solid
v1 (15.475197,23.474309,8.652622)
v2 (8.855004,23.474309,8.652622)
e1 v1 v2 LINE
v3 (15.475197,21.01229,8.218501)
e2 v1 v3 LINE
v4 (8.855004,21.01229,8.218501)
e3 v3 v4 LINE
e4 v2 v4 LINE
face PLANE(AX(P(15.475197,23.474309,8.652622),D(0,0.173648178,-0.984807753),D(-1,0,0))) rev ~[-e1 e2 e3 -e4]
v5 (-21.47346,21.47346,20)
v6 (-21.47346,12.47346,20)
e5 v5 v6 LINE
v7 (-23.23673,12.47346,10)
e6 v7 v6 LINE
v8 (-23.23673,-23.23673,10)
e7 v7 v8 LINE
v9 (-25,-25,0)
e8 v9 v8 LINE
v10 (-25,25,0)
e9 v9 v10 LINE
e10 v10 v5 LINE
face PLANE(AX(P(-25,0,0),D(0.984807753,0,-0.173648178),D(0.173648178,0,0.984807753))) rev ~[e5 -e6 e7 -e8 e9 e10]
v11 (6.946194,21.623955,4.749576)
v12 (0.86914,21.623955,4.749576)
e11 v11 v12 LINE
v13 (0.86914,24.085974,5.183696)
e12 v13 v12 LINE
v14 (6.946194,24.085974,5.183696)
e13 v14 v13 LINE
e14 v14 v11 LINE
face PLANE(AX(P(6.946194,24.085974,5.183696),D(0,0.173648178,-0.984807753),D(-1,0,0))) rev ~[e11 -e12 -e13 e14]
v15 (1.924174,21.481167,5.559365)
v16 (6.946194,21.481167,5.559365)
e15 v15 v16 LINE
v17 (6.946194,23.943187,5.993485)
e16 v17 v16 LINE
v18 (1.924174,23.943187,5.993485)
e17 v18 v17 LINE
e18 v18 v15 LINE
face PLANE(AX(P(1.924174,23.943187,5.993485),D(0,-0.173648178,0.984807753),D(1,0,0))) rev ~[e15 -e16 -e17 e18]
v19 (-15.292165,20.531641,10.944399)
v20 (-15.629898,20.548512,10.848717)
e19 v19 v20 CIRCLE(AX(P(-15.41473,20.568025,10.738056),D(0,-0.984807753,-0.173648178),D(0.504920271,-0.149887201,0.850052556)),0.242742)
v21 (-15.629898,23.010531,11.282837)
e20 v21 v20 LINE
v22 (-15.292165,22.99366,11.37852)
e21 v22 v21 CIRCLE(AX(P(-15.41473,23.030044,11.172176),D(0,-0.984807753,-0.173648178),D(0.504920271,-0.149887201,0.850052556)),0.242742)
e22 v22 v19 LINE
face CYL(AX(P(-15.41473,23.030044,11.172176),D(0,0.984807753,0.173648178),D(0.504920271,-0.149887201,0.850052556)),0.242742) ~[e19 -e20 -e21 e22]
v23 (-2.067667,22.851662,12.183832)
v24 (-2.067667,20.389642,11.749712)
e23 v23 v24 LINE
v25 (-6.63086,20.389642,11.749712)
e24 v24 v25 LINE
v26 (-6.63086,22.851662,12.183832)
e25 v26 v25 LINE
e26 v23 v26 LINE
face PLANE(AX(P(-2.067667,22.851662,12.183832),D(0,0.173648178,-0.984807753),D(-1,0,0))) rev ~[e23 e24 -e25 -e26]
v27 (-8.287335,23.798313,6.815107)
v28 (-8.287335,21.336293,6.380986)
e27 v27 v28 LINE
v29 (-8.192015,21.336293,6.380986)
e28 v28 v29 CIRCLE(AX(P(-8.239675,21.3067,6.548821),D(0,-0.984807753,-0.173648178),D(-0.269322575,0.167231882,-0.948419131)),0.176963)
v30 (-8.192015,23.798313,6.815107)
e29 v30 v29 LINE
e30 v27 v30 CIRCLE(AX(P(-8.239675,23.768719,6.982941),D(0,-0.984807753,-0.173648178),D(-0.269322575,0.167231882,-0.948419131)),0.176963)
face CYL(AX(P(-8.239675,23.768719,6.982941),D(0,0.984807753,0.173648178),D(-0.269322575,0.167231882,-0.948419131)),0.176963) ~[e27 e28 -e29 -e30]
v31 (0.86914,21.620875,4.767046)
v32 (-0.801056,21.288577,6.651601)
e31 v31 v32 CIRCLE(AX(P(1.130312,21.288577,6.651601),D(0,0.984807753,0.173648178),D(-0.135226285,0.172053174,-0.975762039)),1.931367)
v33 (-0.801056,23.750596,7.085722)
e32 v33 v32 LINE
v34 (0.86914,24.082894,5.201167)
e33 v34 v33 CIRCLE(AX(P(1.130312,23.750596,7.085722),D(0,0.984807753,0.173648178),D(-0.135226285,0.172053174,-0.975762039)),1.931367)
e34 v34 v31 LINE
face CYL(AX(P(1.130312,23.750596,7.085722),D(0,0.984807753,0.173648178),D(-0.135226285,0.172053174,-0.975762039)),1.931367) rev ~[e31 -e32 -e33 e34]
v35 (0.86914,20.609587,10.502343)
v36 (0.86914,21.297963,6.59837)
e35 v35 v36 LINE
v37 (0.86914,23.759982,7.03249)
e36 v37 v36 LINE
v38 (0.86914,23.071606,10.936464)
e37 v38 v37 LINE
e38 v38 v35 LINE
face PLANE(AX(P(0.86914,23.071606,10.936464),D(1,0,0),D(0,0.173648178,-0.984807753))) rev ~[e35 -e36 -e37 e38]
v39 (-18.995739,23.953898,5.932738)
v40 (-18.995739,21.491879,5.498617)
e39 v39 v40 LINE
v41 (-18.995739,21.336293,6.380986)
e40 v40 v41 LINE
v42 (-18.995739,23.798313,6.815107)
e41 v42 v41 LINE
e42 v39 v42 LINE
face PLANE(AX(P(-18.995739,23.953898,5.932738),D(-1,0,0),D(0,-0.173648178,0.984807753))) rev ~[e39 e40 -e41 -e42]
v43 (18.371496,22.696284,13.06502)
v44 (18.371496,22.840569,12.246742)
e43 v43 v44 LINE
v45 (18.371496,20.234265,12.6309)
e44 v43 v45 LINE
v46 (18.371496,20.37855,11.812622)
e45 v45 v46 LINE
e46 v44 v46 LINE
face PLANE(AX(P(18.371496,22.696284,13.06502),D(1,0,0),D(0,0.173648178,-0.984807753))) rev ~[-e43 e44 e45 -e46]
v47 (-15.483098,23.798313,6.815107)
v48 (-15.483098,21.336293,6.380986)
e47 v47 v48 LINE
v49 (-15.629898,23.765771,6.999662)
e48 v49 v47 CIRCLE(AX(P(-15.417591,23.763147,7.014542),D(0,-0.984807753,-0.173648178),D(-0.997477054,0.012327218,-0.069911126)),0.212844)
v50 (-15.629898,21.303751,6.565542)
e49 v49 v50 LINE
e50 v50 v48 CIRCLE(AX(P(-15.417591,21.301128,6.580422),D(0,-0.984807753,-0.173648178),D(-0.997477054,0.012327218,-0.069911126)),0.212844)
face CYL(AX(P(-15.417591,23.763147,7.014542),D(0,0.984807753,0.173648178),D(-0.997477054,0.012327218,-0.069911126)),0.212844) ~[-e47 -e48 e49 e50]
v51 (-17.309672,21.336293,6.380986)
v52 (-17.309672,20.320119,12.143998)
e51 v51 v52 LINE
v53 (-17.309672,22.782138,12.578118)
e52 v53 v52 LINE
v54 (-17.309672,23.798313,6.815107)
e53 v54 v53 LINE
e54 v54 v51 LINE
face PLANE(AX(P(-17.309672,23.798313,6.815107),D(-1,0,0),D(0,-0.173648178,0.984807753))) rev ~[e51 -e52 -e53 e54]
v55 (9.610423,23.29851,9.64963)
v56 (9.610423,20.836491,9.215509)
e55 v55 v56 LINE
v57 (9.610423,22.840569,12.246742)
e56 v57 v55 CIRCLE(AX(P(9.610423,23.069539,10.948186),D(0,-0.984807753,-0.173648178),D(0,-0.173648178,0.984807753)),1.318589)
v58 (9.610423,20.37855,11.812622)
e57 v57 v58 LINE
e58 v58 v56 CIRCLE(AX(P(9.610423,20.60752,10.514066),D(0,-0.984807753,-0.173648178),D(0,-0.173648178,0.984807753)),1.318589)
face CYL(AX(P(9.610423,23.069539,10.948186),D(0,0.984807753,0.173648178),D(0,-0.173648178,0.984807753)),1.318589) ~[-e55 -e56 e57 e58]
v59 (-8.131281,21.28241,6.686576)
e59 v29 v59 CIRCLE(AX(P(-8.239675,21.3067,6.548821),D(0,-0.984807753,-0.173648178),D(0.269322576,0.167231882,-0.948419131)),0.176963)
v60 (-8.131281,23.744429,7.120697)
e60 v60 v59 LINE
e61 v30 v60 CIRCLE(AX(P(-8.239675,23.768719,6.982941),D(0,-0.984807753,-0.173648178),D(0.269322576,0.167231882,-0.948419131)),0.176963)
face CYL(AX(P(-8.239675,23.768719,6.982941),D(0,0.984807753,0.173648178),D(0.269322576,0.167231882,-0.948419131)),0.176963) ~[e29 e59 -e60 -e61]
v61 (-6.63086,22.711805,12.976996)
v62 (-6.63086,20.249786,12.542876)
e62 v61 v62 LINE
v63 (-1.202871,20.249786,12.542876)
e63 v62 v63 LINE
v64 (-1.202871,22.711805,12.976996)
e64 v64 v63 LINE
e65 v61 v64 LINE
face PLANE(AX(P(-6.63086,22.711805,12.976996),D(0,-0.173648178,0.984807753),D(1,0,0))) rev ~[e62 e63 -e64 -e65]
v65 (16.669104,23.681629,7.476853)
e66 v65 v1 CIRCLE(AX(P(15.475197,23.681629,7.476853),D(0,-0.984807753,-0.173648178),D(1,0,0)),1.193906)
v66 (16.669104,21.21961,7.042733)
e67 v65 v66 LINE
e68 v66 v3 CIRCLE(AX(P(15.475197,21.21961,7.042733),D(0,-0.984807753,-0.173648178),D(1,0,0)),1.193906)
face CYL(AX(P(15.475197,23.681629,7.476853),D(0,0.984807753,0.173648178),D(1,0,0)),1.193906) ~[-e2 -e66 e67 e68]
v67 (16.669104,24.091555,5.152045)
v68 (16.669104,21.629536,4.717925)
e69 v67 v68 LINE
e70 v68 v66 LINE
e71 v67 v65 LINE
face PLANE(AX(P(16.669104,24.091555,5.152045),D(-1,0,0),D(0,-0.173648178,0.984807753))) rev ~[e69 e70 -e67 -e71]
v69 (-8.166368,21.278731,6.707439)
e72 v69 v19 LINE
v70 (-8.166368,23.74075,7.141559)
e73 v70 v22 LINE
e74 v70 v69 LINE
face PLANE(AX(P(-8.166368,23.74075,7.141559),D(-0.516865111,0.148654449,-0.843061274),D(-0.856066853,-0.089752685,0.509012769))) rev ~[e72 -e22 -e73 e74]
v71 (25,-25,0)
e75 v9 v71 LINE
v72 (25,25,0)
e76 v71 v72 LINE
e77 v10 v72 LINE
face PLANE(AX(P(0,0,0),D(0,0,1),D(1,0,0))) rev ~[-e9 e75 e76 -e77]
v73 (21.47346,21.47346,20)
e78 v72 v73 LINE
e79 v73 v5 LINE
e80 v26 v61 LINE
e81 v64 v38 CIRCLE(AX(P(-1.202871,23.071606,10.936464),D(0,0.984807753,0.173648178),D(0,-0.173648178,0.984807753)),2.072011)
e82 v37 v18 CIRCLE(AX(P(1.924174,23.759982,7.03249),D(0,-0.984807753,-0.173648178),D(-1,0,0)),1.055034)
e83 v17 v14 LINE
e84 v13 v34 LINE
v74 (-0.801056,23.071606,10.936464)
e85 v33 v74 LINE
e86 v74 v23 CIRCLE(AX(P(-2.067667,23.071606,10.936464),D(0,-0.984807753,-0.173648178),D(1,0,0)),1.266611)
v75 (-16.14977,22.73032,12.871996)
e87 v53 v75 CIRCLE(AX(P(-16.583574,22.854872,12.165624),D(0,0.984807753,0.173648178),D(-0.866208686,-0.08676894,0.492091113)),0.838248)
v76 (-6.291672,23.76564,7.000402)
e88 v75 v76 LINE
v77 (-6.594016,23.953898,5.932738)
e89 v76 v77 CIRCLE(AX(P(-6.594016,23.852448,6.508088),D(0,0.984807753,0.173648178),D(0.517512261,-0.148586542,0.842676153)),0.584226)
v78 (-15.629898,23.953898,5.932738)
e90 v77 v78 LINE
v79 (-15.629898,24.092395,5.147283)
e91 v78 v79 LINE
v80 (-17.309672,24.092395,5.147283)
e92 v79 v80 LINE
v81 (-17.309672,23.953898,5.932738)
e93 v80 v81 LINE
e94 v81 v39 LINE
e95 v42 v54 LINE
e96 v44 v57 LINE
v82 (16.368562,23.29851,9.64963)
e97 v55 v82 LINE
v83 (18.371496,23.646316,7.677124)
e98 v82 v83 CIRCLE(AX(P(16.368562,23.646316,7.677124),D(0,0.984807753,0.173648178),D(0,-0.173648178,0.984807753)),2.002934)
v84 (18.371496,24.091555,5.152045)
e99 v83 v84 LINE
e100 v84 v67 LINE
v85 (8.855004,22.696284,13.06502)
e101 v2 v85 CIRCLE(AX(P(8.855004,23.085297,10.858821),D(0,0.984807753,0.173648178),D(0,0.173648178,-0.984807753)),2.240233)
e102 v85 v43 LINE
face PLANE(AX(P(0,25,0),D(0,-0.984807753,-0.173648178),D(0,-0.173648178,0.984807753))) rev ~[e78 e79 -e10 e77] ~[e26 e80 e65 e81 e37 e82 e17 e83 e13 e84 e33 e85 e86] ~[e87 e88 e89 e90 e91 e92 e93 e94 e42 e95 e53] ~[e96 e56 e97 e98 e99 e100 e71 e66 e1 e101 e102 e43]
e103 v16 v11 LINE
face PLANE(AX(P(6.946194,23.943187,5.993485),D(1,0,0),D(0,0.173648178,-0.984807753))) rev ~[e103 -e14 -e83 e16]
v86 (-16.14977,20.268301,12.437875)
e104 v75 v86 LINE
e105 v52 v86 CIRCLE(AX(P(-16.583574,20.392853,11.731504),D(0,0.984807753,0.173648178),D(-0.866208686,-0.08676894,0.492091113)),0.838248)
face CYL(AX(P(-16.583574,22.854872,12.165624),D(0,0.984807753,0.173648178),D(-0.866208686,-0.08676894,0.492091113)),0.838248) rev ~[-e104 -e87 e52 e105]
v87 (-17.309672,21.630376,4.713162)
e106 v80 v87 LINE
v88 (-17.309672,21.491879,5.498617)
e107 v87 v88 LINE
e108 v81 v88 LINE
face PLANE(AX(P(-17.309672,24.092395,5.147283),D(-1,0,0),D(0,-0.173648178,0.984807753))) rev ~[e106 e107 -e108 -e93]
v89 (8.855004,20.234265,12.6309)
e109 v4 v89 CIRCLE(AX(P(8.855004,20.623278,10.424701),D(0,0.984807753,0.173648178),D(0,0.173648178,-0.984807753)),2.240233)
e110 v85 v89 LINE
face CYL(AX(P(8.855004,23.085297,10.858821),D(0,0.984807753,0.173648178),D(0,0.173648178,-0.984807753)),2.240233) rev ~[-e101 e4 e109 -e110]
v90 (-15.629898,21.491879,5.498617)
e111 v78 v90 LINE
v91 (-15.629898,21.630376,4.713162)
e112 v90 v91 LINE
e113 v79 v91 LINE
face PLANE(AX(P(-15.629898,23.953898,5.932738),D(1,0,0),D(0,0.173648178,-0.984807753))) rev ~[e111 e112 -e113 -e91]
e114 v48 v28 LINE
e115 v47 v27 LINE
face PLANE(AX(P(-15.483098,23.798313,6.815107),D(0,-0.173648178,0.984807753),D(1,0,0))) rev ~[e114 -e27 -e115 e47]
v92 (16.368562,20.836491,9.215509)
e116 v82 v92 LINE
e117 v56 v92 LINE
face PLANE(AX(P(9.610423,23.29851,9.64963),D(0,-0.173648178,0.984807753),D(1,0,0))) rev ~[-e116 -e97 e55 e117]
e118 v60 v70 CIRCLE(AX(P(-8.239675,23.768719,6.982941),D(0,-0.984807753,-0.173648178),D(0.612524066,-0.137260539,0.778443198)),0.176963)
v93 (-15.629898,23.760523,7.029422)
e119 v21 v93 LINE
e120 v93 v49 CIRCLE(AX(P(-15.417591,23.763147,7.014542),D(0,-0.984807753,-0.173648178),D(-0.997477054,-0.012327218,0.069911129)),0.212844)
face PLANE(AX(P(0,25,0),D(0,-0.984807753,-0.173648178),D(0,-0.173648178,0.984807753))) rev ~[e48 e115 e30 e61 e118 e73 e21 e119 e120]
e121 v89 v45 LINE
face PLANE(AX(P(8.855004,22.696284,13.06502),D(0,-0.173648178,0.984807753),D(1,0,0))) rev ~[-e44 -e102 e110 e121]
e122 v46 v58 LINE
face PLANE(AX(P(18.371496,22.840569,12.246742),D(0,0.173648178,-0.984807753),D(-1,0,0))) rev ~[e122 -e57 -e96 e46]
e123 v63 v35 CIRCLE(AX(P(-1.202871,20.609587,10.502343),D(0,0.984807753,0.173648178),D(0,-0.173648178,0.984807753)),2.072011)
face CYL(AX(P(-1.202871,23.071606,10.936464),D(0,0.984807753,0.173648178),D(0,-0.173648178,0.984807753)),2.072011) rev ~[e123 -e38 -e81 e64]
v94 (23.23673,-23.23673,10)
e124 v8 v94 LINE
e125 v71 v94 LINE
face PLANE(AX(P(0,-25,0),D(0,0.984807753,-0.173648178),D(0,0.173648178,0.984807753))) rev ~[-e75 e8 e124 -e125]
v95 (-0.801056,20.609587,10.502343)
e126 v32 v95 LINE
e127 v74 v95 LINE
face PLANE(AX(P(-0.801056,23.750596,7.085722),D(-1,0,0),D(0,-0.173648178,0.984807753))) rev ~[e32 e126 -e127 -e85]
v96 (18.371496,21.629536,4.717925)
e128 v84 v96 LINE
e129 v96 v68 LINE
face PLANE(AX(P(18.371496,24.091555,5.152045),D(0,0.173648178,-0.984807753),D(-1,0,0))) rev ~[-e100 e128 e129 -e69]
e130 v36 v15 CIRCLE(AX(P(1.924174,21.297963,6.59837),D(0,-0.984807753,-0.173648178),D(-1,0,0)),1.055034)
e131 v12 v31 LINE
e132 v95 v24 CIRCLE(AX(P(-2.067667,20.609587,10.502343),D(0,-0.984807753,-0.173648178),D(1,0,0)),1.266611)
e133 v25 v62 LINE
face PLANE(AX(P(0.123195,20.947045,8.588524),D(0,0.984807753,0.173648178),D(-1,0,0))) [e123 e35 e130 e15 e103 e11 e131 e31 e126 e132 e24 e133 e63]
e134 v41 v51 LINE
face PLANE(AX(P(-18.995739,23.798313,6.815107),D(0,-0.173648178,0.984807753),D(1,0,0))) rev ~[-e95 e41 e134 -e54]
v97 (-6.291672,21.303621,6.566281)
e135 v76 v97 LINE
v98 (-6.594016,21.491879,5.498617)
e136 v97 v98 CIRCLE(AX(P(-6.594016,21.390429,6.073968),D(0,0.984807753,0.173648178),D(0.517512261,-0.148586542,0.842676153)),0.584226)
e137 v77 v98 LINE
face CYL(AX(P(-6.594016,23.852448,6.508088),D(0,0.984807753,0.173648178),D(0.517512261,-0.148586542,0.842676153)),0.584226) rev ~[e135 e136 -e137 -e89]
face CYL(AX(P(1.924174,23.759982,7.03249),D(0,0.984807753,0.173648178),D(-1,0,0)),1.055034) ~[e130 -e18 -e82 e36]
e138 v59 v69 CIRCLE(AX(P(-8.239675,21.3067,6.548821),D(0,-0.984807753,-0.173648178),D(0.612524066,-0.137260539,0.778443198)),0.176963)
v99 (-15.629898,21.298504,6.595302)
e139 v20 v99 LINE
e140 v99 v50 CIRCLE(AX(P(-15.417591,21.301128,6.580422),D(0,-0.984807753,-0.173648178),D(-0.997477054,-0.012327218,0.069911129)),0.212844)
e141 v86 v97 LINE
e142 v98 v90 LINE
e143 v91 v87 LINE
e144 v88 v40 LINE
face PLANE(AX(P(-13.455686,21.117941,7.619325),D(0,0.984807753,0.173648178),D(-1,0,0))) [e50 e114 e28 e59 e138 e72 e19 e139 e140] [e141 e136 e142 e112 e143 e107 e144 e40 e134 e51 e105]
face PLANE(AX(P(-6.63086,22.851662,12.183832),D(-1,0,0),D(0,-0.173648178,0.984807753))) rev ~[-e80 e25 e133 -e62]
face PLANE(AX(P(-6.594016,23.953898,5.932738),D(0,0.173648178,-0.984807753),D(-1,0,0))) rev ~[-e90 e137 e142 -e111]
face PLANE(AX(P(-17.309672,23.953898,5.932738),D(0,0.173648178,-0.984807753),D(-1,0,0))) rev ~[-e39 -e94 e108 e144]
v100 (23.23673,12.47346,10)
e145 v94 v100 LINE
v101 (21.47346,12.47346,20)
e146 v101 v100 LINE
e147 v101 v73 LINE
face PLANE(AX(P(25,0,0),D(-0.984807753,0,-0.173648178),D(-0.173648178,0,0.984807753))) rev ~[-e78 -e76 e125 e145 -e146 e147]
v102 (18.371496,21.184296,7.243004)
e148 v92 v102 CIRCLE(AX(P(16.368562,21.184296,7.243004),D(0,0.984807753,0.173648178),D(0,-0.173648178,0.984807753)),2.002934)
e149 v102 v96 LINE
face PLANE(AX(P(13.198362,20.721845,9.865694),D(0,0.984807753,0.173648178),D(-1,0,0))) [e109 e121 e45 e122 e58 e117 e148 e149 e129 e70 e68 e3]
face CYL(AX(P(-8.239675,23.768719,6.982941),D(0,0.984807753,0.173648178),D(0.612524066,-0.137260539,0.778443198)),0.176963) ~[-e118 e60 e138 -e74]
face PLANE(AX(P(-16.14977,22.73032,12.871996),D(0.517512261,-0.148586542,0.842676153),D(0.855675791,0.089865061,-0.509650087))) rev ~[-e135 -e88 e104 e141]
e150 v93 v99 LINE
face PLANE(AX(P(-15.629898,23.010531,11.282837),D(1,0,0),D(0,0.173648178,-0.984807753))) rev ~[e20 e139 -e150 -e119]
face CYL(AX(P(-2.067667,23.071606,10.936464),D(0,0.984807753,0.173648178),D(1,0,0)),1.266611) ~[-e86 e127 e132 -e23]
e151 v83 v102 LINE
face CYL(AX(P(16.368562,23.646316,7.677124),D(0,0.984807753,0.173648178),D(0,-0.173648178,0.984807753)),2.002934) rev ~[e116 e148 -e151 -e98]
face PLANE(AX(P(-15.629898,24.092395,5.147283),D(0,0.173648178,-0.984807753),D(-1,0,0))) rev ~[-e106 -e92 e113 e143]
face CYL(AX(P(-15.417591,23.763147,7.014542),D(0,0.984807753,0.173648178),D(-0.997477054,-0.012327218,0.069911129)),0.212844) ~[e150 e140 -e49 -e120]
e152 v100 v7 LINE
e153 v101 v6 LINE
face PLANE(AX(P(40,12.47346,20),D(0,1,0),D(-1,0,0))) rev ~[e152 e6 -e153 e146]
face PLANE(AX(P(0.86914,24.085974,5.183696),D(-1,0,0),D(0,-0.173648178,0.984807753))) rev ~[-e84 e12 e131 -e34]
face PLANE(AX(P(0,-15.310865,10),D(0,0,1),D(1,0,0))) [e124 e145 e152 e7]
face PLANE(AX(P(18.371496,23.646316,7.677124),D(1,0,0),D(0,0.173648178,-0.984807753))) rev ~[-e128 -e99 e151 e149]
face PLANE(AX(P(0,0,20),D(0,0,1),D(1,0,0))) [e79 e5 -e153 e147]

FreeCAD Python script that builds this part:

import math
import FreeCAD as App
import Part
import Sketcher
from FreeCAD import Vector
Q = App.Units.Quantity


def add_polygon(sketch, points):
    """Adds a closed chain of lines whose ends are joined by coincident constraints."""
    first, n = sketch.GeometryCount, len(points)
    for a, b in zip(points, points[1:] + points[:1]):
        sketch.addGeometry(Part.LineSegment(App.Vector(*a, 0), App.Vector(*b, 0)), False)
    for i in range(n):
        sketch.addConstraint(Sketcher.Constraint("Coincident", first + i, 2, first + (i + 1) % n, 1))

doc = App.newDocument("Part")
body = doc.addObject("PartDesign::Body", "Body")

# Sketch on XY plane
sketch1 = body.newObject("Sketcher::SketchObject", "Sketch")
sketch1.AttachmentSupport = (doc.getObject("XY_Plane"), [""])
sketch1.MapMode = "FlatFace"
add_polygon(sketch1, [(-25, 25), (-25, -25), (25, -25), (25, 25)])  # lines 0-3
sketch1.addConstraint(Sketcher.Constraint("Vertical", 0))
sketch1.addConstraint(Sketcher.Constraint("Horizontal", 1))
sketch1.addConstraint(Sketcher.Constraint("Vertical", 2))
sketch1.addConstraint(Sketcher.Constraint("Horizontal", 3))
sketch1.addConstraint(Sketcher.Constraint("Symmetric", 0, 2, 2, 2, -1, 1))
sketch1.addConstraint(Sketcher.Constraint("Equal", 3, 0))
sketch1.addConstraint(Sketcher.Constraint("DistanceX", 1, 1, 1, 2, Q("50 mm")))
pad1 = body.newObject("PartDesign::Pad", "Pad")
pad1.Profile = sketch1
pad1.Length = 20
pad1.TaperAngle = -10

# Sketch on an angled plane
sketch2 = body.newObject("Sketcher::SketchObject", "Sketch001")
sketch2.Placement = App.Placement(Vector(0, 24.246158, 4.275252), App.Rotation(Vector(-1, 0, 0), Vector(0, -0.173648178, 0.984807753), Vector(0, 0.984807753, 0.173648178), "ZXY"))
sketch2.addGeometry(Part.ArcOfCircle(Part.Circle(Vector(-71.105, -7.356, 0), Vector(0, 0, 1), 21.18), math.radians(66.36), math.radians(80.74)), False)
sketch2.addGeometry(Part.LineSegment(Vector(-67.697, 13.548, 0), Vector(-67.697, 1.701, 0)), False)
sketch2.addGeometry(Part.LineSegment(Vector(-67.697, 1.701, 0), Vector(-64.997, 0.651, 0)), False)
sketch2.addGeometry(Part.LineSegment(Vector(-64.997, 0.651, 0), Vector(-64.997, 10.897, 0)), False)
sketch2.addGeometry(Part.ArcOfCircle(Part.Circle(Vector(-64.427, 10.897, 0), Vector(0, 0, 1), 0.57), math.radians(0), math.radians(180)), False)
sketch2.addGeometry(Part.LineSegment(Vector(-63.857, 10.897, 0), Vector(-63.857, 6.575, 0)), False)
sketch2.addGeometry(Part.ArcOfCircle(Part.Circle(Vector(-62.704, 7.918, 0), Vector(0, 0, 1), 1.77), math.radians(-131), math.radians(-79)), False)
sketch2.addGeometry(Part.ArcOfCircle(Part.Circle(Vector(-62.737, 8.094, 0), Vector(0, 0, 1), 1.949), math.radians(-79), math.radians(-22)), False)
sketch2.addGeometry(Part.ArcOfCircle(Part.Circle(Vector(-67.796, 8.633, 0), Vector(0, 0, 1), 6.983), math.radians(-10), math.radians(10)), False)
sketch2.addGeometry(Part.ArcOfCircle(Part.Circle(Vector(-63.744, 9.427, 0), Vector(0, 0, 1), 2.853), math.radians(10), math.radians(67)), False)
sketch2.addGeometry(Part.LineSegment(Vector(-59.852, 4.126, 0), Vector(-64.347, 2.507, 0)), False)
sketch2.addGeometry(Part.LineSegment(Vector(-64.347, 2.507, 0), Vector(-64.347, 0.89, 0)), False)
sketch2.addGeometry(Part.LineSegment(Vector(-64.347, 0.89, 0), Vector(-59.197, 2.745, 0)), False)
sketch2.addGeometry(Part.ArcOfCircle(Part.Circle(Vector(-61.731, 10.069, 0), Vector(0, 0, 1), 7.75), math.radians(-70.91), math.radians(-57.52)), False)
sketch2.addGeometry(Part.ArcOfCircle(Part.Circle(Vector(-57.792, 4.168, 0), Vector(0, 0, 1), 0.674), math.radians(-71), math.radians(10)), False)
sketch2.addGeometry(Part.ArcOfCircle(Part.Circle(Vector(-57.847, 4.181, 0), Vector(0, 0, 1), 0.726), math.radians(8), math.radians(68)), False)
sketch2.addGeometry(Part.ArcOfCircle(Part.Circle(Vector(-60.835, -1.35, 0), Vector(0, 0, 1), 7.01), math.radians(62), math.radians(90)), False)
sketch2.addGeometry(Part.ArcOfCircle(Part.Circle(Vector(-61.23, -5.16, 0), Vector(0, 0, 1), 10.827), math.radians(87.76), math.radians(104.04)), False)
sketch2.addGeometry(Part.LineSegment(Vector(-63.857, 5.344, 0), Vector(-64.373, 5.158, 0)), False)
sketch2.addGeometry(Part.LineSegment(Vector(-64.373, 5.158, 0), Vector(-64.373, 3.568, 0)), False)
sketch2.addGeometry(Part.LineSegment(Vector(-64.373, 3.568, 0), Vector(-61.538, 4.589, 0)), False)
sketch2.addGeometry(Part.LineSegment(Vector(-61.538, 4.589, 0), Vector(-61.358, 4.654, 0)), False)
sketch2.addGeometry(Part.ArcOfCircle(Part.Circle(Vector(-60.569, 2.181, 0), Vector(0, 0, 1), 2.595), math.radians(79), math.radians(108)), False)
sketch2.addGeometry(Part.ArcOfCircle(Part.Circle(Vector(-60.133, 4.117, 0), Vector(0, 0, 1), 0.615), math.radians(36), math.radians(85)), False)
sketch2.addGeometry(Part.ArcOfCircle(Part.Circle(Vector(-59.767, 4.39, 0), Vector(0, 0, 1), 0.159), math.radians(-33), math.radians(33)), False)
sketch2.addGeometry(Part.ArcOfCircle(Part.Circle(Vector(-60.012, 4.549, 0), Vector(0, 0, 1), 0.452), math.radians(-69), math.radians(-33)), False)
sketch2.addGeometry(Part.LineSegment(Vector(-71.369, 3.723, 0), Vector(-68.234, 4.853, 0)), False)
sketch2.addGeometry(Part.LineSegment(Vector(-68.234, 4.853, 0), Vector(-68.234, 6.399, 0)), False)
sketch2.addGeometry(Part.LineSegment(Vector(-68.234, 6.399, 0), Vector(-72.859, 4.733, 0)), False)
sketch2.addGeometry(Part.ArcOfCircle(Part.Circle(Vector(-71.637, 2.19, 0), Vector(0, 0, 1), 2.821), math.radians(116), math.radians(140)), False)
sketch2.addGeometry(Part.ArcOfCircle(Part.Circle(Vector(-73.063, 3.722, 0), Vector(0, 0, 1), 0.786), math.radians(159), math.radians(201)), False)
sketch2.addGeometry(Part.ArcOfCircle(Part.Circle(Vector(-72.964, 3.713, 0), Vector(0, 0, 1), 0.876), math.radians(-162), math.radians(-106)), False)
sketch2.addGeometry(Part.ArcOfCircle(Part.Circle(Vector(-71.771, 5.218, 0), Vector(0, 0, 1), 2.752), math.radians(-121), math.radians(-98)), False)
sketch2.addGeometry(Part.ArcOfCircle(Part.Circle(Vector(-70.027, 9.833, 0), Vector(0, 0, 1), 7.641), math.radians(-106.14), math.radians(-88.79)), False)
sketch2.addGeometry(Part.ArcOfCircle(Part.Circle(Vector(-69.678, 10.401, 0), Vector(0, 0, 1), 8.21), math.radians(-91.31), math.radians(-79.87)), False)
sketch2.addGeometry(Part.LineSegment(Vector(-68.234, 2.319, 0), Vector(-68.234, 3.768, 0)), False)
sketch2.addGeometry(Part.ArcOfCircle(Part.Circle(Vector(-70.832, 9.823, 0), Vector(0, 0, 1), 6.589), math.radians(-75.7), math.radians(-66.77)), False)
sketch2.addGeometry(Part.ArcOfCircle(Part.Circle(Vector(-70.535, 6.269, 0), Vector(0, 0, 1), 3.128), math.radians(-105), math.radians(-65)), False)
sketch2.addGeometry(Part.ArcOfCircle(Part.Circle(Vector(-71.156, 3.489, 0), Vector(0, 0, 1), 0.317), math.radians(132), math.radians(228)), False)
sketch2.addGeometry(Part.LineSegment(Vector(-8.855, 8.925, 0), Vector(-18.371, 8.925, 0)), False)
sketch2.addGeometry(Part.LineSegment(Vector(-18.371, 8.925, 0), Vector(-18.371, 8.094, 0)), False)
sketch2.addGeometry(Part.LineSegment(Vector(-18.371, 8.094, 0), Vector(-9.61, 8.094, 0)), False)
sketch2.addGeometry(Part.ArcOfCircle(Part.Circle(Vector(-9.61, 6.776, 0), Vector(0, 0, 1), 1.319), math.radians(-90), math.radians(90)), False)
sketch2.addGeometry(Part.LineSegment(Vector(-9.61, 5.457, 0), Vector(-16.369, 5.457, 0)), False)
sketch2.addGeometry(Part.ArcOfCircle(Part.Circle(Vector(-16.369, 3.454, 0), Vector(0, 0, 1), 2.003), math.radians(90), math.radians(180)), False)
sketch2.addGeometry(Part.LineSegment(Vector(-18.371, 3.454, 0), Vector(-18.371, 0.89, 0)), False)
sketch2.addGeometry(Part.LineSegment(Vector(-18.371, 0.89, 0), Vector(-16.669, 0.89, 0)), False)
sketch2.addGeometry(Part.LineSegment(Vector(-16.669, 0.89, 0), Vector(-16.669, 3.251, 0)), False)
sketch2.addGeometry(Part.ArcOfCircle(Part.Circle(Vector(-15.475, 3.251, 0), Vector(0, 0, 1), 1.194), math.radians(90), math.radians(180)), False)
sketch2.addGeometry(Part.LineSegment(Vector(-15.475, 4.445, 0), Vector(-8.855, 4.445, 0)), False)
sketch2.addGeometry(Part.ArcOfCircle(Part.Circle(Vector(-8.855, 6.685, 0), Vector(0, 0, 1), 2.24), math.radians(-90), math.radians(90)), False)
sketch2.addGeometry(Part.LineSegment(Vector(6.631, 8.031, 0), Vector(6.631, 8.836, 0)), False)
sketch2.addGeometry(Part.LineSegment(Vector(6.631, 8.836, 0), Vector(1.203, 8.836, 0)), False)
sketch2.addGeometry(Part.ArcOfCircle(Part.Circle(Vector(1.203, 6.764, 0), Vector(0, 0, 1), 2.072), math.radians(90), math.radians(180)), False)
sketch2.addGeometry(Part.LineSegment(Vector(-0.869, 6.764, 0), Vector(-0.869, 2.8, 0)), False)
sketch2.addGeometry(Part.ArcOfCircle(Part.Circle(Vector(-1.924, 2.8, 0), Vector(0, 0, 1), 1.055), math.radians(-90), math.radians(0)), False)
sketch2.addGeometry(Part.LineSegment(Vector(-1.924, 1.745, 0), Vector(-6.946, 1.745, 0)), False)
sketch2.addGeometry(Part.LineSegment(Vector(-6.946, 1.745, 0), Vector(-6.946, 0.922, 0)), False)
sketch2.addGeometry(Part.LineSegment(Vector(-6.946, 0.922, 0), Vector(-0.869, 0.922, 0)), False)
sketch2.addGeometry(Part.LineSegment(Vector(-0.869, 0.922, 0), Vector(-0.869, 0.94, 0)), False)
sketch2.addGeometry(Part.ArcOfCircle(Part.Circle(Vector(-1.13, 2.854, 0), Vector(0, 0, 1), 1.931), math.radians(-82), math.radians(0)), False)
sketch2.addGeometry(Part.LineSegment(Vector(0.801, 2.854, 0), Vector(0.801, 6.764, 0)), False)
sketch2.addGeometry(Part.ArcOfCircle(Part.Circle(Vector(2.068, 6.764, 0), Vector(0, 0, 1), 1.267), math.radians(90), math.radians(180)), False)
sketch2.addGeometry(Part.LineSegment(Vector(2.068, 8.031, 0), Vector(6.631, 8.031, 0)), False)
sketch2.addGeometry(Part.LineSegment(Vector(16.15, 8.729, 0), Vector(6.292, 2.767, 0)), False)
sketch2.addGeometry(Part.ArcOfCircle(Part.Circle(Vector(6.594, 2.267, 0), Vector(0, 0, 1), 0.584), math.radians(121), math.radians(270)), False)
sketch2.addGeometry(Part.LineSegment(Vector(6.594, 1.683, 0), Vector(15.63, 1.683, 0)), False)
sketch2.addGeometry(Part.LineSegment(Vector(15.63, 1.683, 0), Vector(15.63, 0.885, 0)), False)
sketch2.addGeometry(Part.LineSegment(Vector(15.63, 0.885, 0), Vector(17.31, 0.885, 0)), False)
sketch2.addGeometry(Part.LineSegment(Vector(17.31, 0.885, 0), Vector(17.31, 1.683, 0)), False)
sketch2.addGeometry(Part.LineSegment(Vector(17.31, 1.683, 0), Vector(18.996, 1.683, 0)), False)
sketch2.addGeometry(Part.LineSegment(Vector(18.996, 1.683, 0), Vector(18.996, 2.579, 0)), False)
sketch2.addGeometry(Part.LineSegment(Vector(18.996, 2.579, 0), Vector(17.31, 2.579, 0)), False)
sketch2.addGeometry(Part.LineSegment(Vector(17.31, 2.579, 0), Vector(17.31, 8.431, 0)), False)
sketch2.addGeometry(Part.ArcOfCircle(Part.Circle(Vector(16.584, 8.012, 0), Vector(0, 0, 1), 0.838), math.radians(30), math.radians(121)), False)
sketch2.addGeometry(Part.ArcOfCircle(Part.Circle(Vector(15.418, 2.782, 0), Vector(0, 0, 1), 0.213), math.radians(-4.07), math.radians(4.07)), False)
sketch2.addGeometry(Part.ArcOfCircle(Part.Circle(Vector(15.418, 2.782, 0), Vector(0, 0, 1), 0.213), math.radians(-72), math.radians(-4)), False)
sketch2.addGeometry(Part.LineSegment(Vector(15.483, 2.579, 0), Vector(8.287, 2.579, 0)), False)
sketch2.addGeometry(Part.ArcOfCircle(Part.Circle(Vector(8.24, 2.749, 0), Vector(0, 0, 1), 0.177), math.radians(-106), math.radians(-74)), False)
sketch2.addGeometry(Part.ArcOfCircle(Part.Circle(Vector(8.24, 2.749, 0), Vector(0, 0, 1), 0.177), math.radians(128), math.radians(254)), False)
sketch2.addGeometry(Part.ArcOfCircle(Part.Circle(Vector(8.24, 2.749, 0), Vector(0, 0, 1), 0.177), math.radians(114.47), math.radians(127.77)), False)
sketch2.addGeometry(Part.LineSegment(Vector(8.166, 2.911, 0), Vector(15.292, 7.213, 0)), False)
sketch2.addGeometry(Part.ArcOfCircle(Part.Circle(Vector(15.415, 7.003, 0), Vector(0, 0, 1), 0.243), math.radians(28), math.radians(120)), False)
sketch2.addGeometry(Part.LineSegment(Vector(15.63, 7.116, 0), Vector(15.63, 2.797, 0)), False)
sketch2.addConstraint(Sketcher.Constraint("Coincident", 0, 2, 1, 1))
sketch2.addConstraint(Sketcher.Constraint("Coincident", 1, 2, 2, 1))
sketch2.addConstraint(Sketcher.Constraint("Coincident", 2, 2, 3, 1))
sketch2.addConstraint(Sketcher.Constraint("Tangent", 3, 2, 4, 2))
sketch2.addConstraint(Sketcher.Constraint("Tangent", 4, 1, 5, 1))
sketch2.addConstraint(Sketcher.Constraint("Coincident", 5, 2, 6, 1))
sketch2.addConstraint(Sketcher.Constraint("Coincident", 6, 2, 7, 1))
sketch2.addConstraint(Sketcher.Constraint("Coincident", 7, 2, 8, 1))
sketch2.addConstraint(Sketcher.Constraint("Coincident", 8, 2, 9, 1))
sketch2.addConstraint(Sketcher.Constraint("Coincident", 9, 2, 0, 1))
sketch2.addConstraint(Sketcher.Constraint("Coincident", 10, 2, 11, 1))
sketch2.addConstraint(Sketcher.Constraint("Coincident", 11, 2, 12, 1))
sketch2.addConstraint(Sketcher.Constraint("Coincident", 12, 2, 13, 1))
sketch2.addConstraint(Sketcher.Constraint("Coincident", 13, 2, 14, 1))
sketch2.addConstraint(Sketcher.Constraint("Coincident", 14, 2, 15, 1))
sketch2.addConstraint(Sketcher.Constraint("Coincident", 15, 2, 16, 1))
sketch2.addConstraint(Sketcher.Constraint("Coincident", 16, 2, 17, 1))
sketch2.addConstraint(Sketcher.Constraint("Coincident", 17, 2, 18, 1))
sketch2.addConstraint(Sketcher.Constraint("Coincident", 18, 2, 19, 1))
sketch2.addConstraint(Sketcher.Constraint("Coincident", 19, 2, 20, 1))
sketch2.addConstraint(Sketcher.Constraint("Coincident", 20, 2, 21, 1))
sketch2.addConstraint(Sketcher.Constraint("Coincident", 21, 2, 22, 2))
sketch2.addConstraint(Sketcher.Constraint("Coincident", 22, 1, 23, 2))
sketch2.addConstraint(Sketcher.Constraint("Coincident", 23, 1, 24, 2))
sketch2.addConstraint(Sketcher.Constraint("Coincident", 24, 1, 25, 2))
sketch2.addConstraint(Sketcher.Constraint("Coincident", 25, 1, 10, 1))
sketch2.addConstraint(Sketcher.Constraint("Coincident", 26, 2, 27, 1))
sketch2.addConstraint(Sketcher.Constraint("Coincident", 27, 2, 28, 1))
sketch2.addConstraint(Sketcher.Constraint("Coincident", 28, 2, 29, 1))
sketch2.addConstraint(Sketcher.Constraint("Coincident", 29, 2, 30, 1))
sketch2.addConstraint(Sketcher.Constraint("Coincident", 30, 2, 31, 1))
sketch2.addConstraint(Sketcher.Constraint("Coincident", 31, 2, 32, 1))
sketch2.addConstraint(Sketcher.Constraint("Coincident", 32, 2, 33, 1))
sketch2.addConstraint(Sketcher.Constraint("Coincident", 33, 2, 34, 1))
sketch2.addConstraint(Sketcher.Constraint("Coincident", 34, 2, 35, 1))
sketch2.addConstraint(Sketcher.Constraint("Coincident", 35, 2, 36, 2))
sketch2.addConstraint(Sketcher.Constraint("Coincident", 36, 1, 37, 2))
sketch2.addConstraint(Sketcher.Constraint("Coincident", 37, 1, 38, 2))
sketch2.addConstraint(Sketcher.Constraint("Coincident", 38, 1, 26, 1))
sketch2.addConstraint(Sketcher.Constraint("Coincident", 39, 2, 40, 1))
sketch2.addConstraint(Sketcher.Constraint("Coincident", 40, 2, 41, 1))
sketch2.addConstraint(Sketcher.Constraint("Tangent", 41, 2, 42, 2))
sketch2.addConstraint(Sketcher.Constraint("Tangent", 42, 1, 43, 1))
sketch2.addConstraint(Sketcher.Constraint("Tangent", 43, 2, 44, 1))
sketch2.addConstraint(Sketcher.Constraint("Tangent", 44, 2, 45, 1))
sketch2.addConstraint(Sketcher.Constraint("Coincident", 45, 2, 46, 1))
sketch2.addConstraint(Sketcher.Constraint("Coincident", 46, 2, 47, 1))
sketch2.addConstraint(Sketcher.Constraint("Tangent", 47, 2, 48, 2))
sketch2.addConstraint(Sketcher.Constraint("Tangent", 48, 1, 49, 1))
sketch2.addConstraint(Sketcher.Constraint("Tangent", 49, 2, 50, 1))
sketch2.addConstraint(Sketcher.Constraint("Tangent", 50, 2, 39, 1))
sketch2.addConstraint(Sketcher.Constraint("Coincident", 51, 2, 52, 1))
sketch2.addConstraint(Sketcher.Constraint("Tangent", 52, 2, 53, 1))
sketch2.addConstraint(Sketcher.Constraint("Tangent", 53, 2, 54, 1))
sketch2.addConstraint(Sketcher.Constraint("Tangent", 54, 2, 55, 2))
sketch2.addConstraint(Sketcher.Constraint("Tangent", 55, 1, 56, 1))
sketch2.addConstraint(Sketcher.Constraint("Coincident", 56, 2, 57, 1))
sketch2.addConstraint(Sketcher.Constraint("Coincident", 57, 2, 58, 1))
sketch2.addConstraint(Sketcher.Constraint("Coincident", 58, 2, 59, 1))
sketch2.addConstraint(Sketcher.Constraint("Coincident", 59, 2, 60, 1))
sketch2.addConstraint(Sketcher.Constraint("Tangent", 60, 2, 61, 1))
sketch2.addConstraint(Sketcher.Constraint("Tangent", 61, 2, 62, 2))
sketch2.addConstraint(Sketcher.Constraint("Tangent", 62, 1, 63, 1))
sketch2.addConstraint(Sketcher.Constraint("Coincident", 63, 2, 51, 1))
sketch2.addConstraint(Sketcher.Constraint("Tangent", 64, 2, 65, 1))
sketch2.addConstraint(Sketcher.Constraint("Tangent", 65, 2, 66, 1))
sketch2.addConstraint(Sketcher.Constraint("Coincident", 66, 2, 67, 1))
sketch2.addConstraint(Sketcher.Constraint("Coincident", 67, 2, 68, 1))
sketch2.addConstraint(Sketcher.Constraint("Coincident", 68, 2, 69, 1))
sketch2.addConstraint(Sketcher.Constraint("Coincident", 69, 2, 70, 1))
sketch2.addConstraint(Sketcher.Constraint("Coincident", 70, 2, 71, 1))
sketch2.addConstraint(Sketcher.Constraint("Coincident", 71, 2, 72, 1))
sketch2.addConstraint(Sketcher.Constraint("Coincident", 72, 2, 73, 1))
sketch2.addConstraint(Sketcher.Constraint("Coincident", 73, 2, 74, 1))
sketch2.addConstraint(Sketcher.Constraint("Tangent", 74, 2, 64, 1))
sketch2.addConstraint(Sketcher.Constraint("Tangent", 75, 1, 76, 2))
sketch2.addConstraint(Sketcher.Constraint("Coincident", 76, 1, 77, 1))
sketch2.addConstraint(Sketcher.Constraint("Coincident", 77, 2, 78, 2))
sketch2.addConstraint(Sketcher.Constraint("Tangent", 78, 1, 79, 2))
sketch2.addConstraint(Sketcher.Constraint("Tangent", 79, 1, 80, 2))
sketch2.addConstraint(Sketcher.Constraint("Coincident", 80, 1, 81, 1))
sketch2.addConstraint(Sketcher.Constraint("Coincident", 81, 2, 82, 2))
sketch2.addConstraint(Sketcher.Constraint("Coincident", 82, 1, 83, 1))
sketch2.addConstraint(Sketcher.Constraint("Coincident", 83, 2, 75, 2))
sketch2.addConstraint(Sketcher.Constraint("Vertical", 1))
sketch2.addConstraint(Sketcher.Constraint("Vertical", 3))
sketch2.addConstraint(Sketcher.Constraint("Vertical", 5))
sketch2.addConstraint(Sketcher.Constraint("Vertical", 11))
sketch2.addConstraint(Sketcher.Constraint("Vertical", 19))
sketch2.addConstraint(Sketcher.Constraint("Vertical", 27))
sketch2.addConstraint(Sketcher.Constraint("Vertical", 35))
sketch2.addConstraint(Sketcher.Constraint("Horizontal", 39))
sketch2.addConstraint(Sketcher.Constraint("Vertical", 40))
sketch2.addConstraint(Sketcher.Constraint("Horizontal", 41))
sketch2.addConstraint(Sketcher.Constraint("Horizontal", 43))
sketch2.addConstraint(Sketcher.Constraint("Vertical", 45))
sketch2.addConstraint(Sketcher.Constraint("Horizontal", 46))
sketch2.addConstraint(Sketcher.Constraint("Vertical", 47))
sketch2.addConstraint(Sketcher.Constraint("Horizontal", 49))
sketch2.addConstraint(Sketcher.Constraint("Vertical", 51))
sketch2.addConstraint(Sketcher.Constraint("Horizontal", 52))
sketch2.addConstraint(Sketcher.Constraint("Vertical", 54))
sketch2.addConstraint(Sketcher.Constraint("Horizontal", 56))
sketch2.addConstraint(Sketcher.Constraint("Vertical", 57))
sketch2.addConstraint(Sketcher.Constraint("Horizontal", 58))
sketch2.addConstraint(Sketcher.Constraint("Vertical", 59))
sketch2.addConstraint(Sketcher.Constraint("Vertical", 61))
sketch2.addConstraint(Sketcher.Constraint("Horizontal", 63))
sketch2.addConstraint(Sketcher.Constraint("Horizontal", 66))
sketch2.addConstraint(Sketcher.Constraint("Vertical", 67))
sketch2.addConstraint(Sketcher.Constraint("Horizontal", 68))
sketch2.addConstraint(Sketcher.Constraint("Vertical", 69))
sketch2.addConstraint(Sketcher.Constraint("Horizontal", 70))
sketch2.addConstraint(Sketcher.Constraint("Vertical", 71))
sketch2.addConstraint(Sketcher.Constraint("Horizontal", 72))
sketch2.addConstraint(Sketcher.Constraint("Vertical", 73))
sketch2.addConstraint(Sketcher.Constraint("Horizontal", 77))
sketch2.addConstraint(Sketcher.Constraint("Vertical", 83))
sketch2.addConstraint(Sketcher.Constraint("Coincident", 80, 3, 78, 3))
sketch2.addConstraint(Sketcher.Constraint("Equal", 75, 76))
sketch2.addConstraint(Sketcher.Constraint("Parallel", 10, 12))
sketch2.addConstraint(Sketcher.Constraint("Parallel", 12, 18))
sketch2.addConstraint(Sketcher.Constraint("Parallel", 18, 20))
sketch2.addConstraint(Sketcher.Constraint("Parallel", 20, 21))
sketch2.addConstraint(Sketcher.Constraint("Parallel", 21, 26))
sketch2.addConstraint(Sketcher.Constraint("Parallel", 26, 28))
sketch2.addConstraint(Sketcher.Constraint("Horizontal", 53, 3, 62, 3))
sketch2.addConstraint(Sketcher.Constraint("Horizontal", 15, 2, 26, 2))
sketch2.addConstraint(Sketcher.Constraint("Horizontal", 30, 2, 36, 1))
sketch2.addConstraint(Sketcher.Constraint("Horizontal", 11, 2, 45, 2))
sketch2.addConstraint(Sketcher.Constraint("Horizontal", 66, 2, 69, 2))
sketch2.addConstraint(Sketcher.Constraint("Horizontal", 72, 2, 76, 1))
sketch2.addConstraint(Sketcher.Constraint("Horizontal", 77, 2, 78, 1))
sketch2.addConstraint(Sketcher.Constraint("Vertical", 7, 2, 8, 2))
sketch2.addConstraint(Sketcher.Constraint("Vertical", 13, 2, 15, 2))
sketch2.addConstraint(Sketcher.Constraint("Vertical", 5, 2, 17, 2))
sketch2.addConstraint(Sketcher.Constraint("Vertical", 23, 1, 24, 1))
sketch2.addConstraint(Sketcher.Constraint("Vertical", 29, 2, 30, 2))
sketch2.addConstraint(Sketcher.Constraint("Vertical", 27, 2, 34, 2))
sketch2.addConstraint(Sketcher.Constraint("Vertical", 37, 1, 38, 1))
sketch2.addConstraint(Sketcher.Constraint("Vertical", 40, 2, 44, 2))
sketch2.addConstraint(Sketcher.Constraint("Vertical", 54, 2, 58, 2))
sketch2.addConstraint(Sketcher.Constraint("Vertical", 69, 2, 72, 2))
sketch2.addConstraint(Sketcher.Constraint("Vertical", 67, 2, 75, 1))
sketch2.addConstraint(Sketcher.Constraint("Vertical", 75, 1, 82, 1))
sketch2.addConstraint(Sketcher.Constraint("Radius", 32, Q("2.752001 mm")))
sketch2.addConstraint(Sketcher.Constraint("DistanceY", 5, 2, 5, 1, Q("4.322001 mm")))
sketch2.addConstraint(Sketcher.Constraint("Radius", 8, Q("6.98256 mm")))
sketch2.addConstraint(Sketcher.Constraint("Radius", 17, Q("10.827481 mm")))
sketch2.addConstraint(Sketcher.Constraint("Radius", 22, Q("2.595459 mm")))
sketch2.addConstraint(Sketcher.Constraint("Radius", 30, Q("0.78597 mm")))
sketch2.addConstraint(Sketcher.Constraint("Radius", 31, Q("0.87614 mm")))
sketch2.addConstraint(Sketcher.Constraint("Radius", 33, Q("7.64104 mm")))
sketch2.addConstraint(Sketcher.Constraint("Radius", 42, Q("1.318589 mm")))
sketch2.addConstraint(Sketcher.Constraint("Radius", 53, Q("2.072011 mm")))
sketch2.addConstraint(Sketcher.Constraint("Radius", 62, Q("1.266611 mm")))
sketch2.addConstraint(Sketcher.Constraint("DistanceY", 40, 2, 40, 1, Q("0.830901 mm")))
sketch2.addConstraint(Sketcher.Constraint("DistanceY", 54, 2, 54, 1, Q("3.964199 mm")))
sketch2.addConstraint(Sketcher.Constraint("DistanceY", -1, 1, 23, 3, Q("4.117001 mm")))
sketch2.addConstraint(Sketcher.Constraint("Radius", 0, Q("21.179873 mm")))
sketch2.addConstraint(Sketcher.Constraint("Radius", 4, Q("0.570116 mm")))
sketch2.addConstraint(Sketcher.Constraint("Radius", 6, Q("1.769994 mm")))
sketch2.addConstraint(Sketcher.Constraint("Radius", 7, Q("1.949245 mm")))
sketch2.addConstraint(Sketcher.Constraint("Radius", 9, Q("2.853175 mm")))
sketch2.addConstraint(Sketcher.Constraint("Radius", 13, Q("7.749936 mm")))
sketch2.addConstraint(Sketcher.Constraint("Radius", 14, Q("0.674106 mm")))
sketch2.addConstraint(Sketcher.Constraint("Radius", 15, Q("0.726488 mm")))
sketch2.addConstraint(Sketcher.Constraint("Radius", 16, Q("7.009716 mm")))
sketch2.addConstraint(Sketcher.Constraint("Radius", 23, Q("0.615283 mm")))
sketch2.addConstraint(Sketcher.Constraint("Radius", 24, Q("0.159024 mm")))
sketch2.addConstraint(Sketcher.Constraint("Radius", 25, Q("0.451574 mm")))
sketch2.addConstraint(Sketcher.Constraint("Radius", 29, Q("2.821464 mm")))
sketch2.addConstraint(Sketcher.Constraint("Radius", 34, Q("8.210033 mm")))
sketch2.addConstraint(Sketcher.Constraint("Radius", 36, Q("6.589095 mm")))
sketch2.addConstraint(Sketcher.Constraint("Radius", 37, Q("3.127694 mm")))
sketch2.addConstraint(Sketcher.Constraint("Radius", 38, Q("0.316744 mm")))
sketch2.addConstraint(Sketcher.Constraint("Radius", 44, Q("2.002934 mm")))
sketch2.addConstraint(Sketcher.Constraint("Radius", 48, Q("1.193906 mm")))
sketch2.addConstraint(Sketcher.Constraint("Radius", 50, Q("2.240233 mm")))
sketch2.addConstraint(Sketcher.Constraint("Radius", 55, Q("1.055034 mm")))
sketch2.addConstraint(Sketcher.Constraint("Radius", 60, Q("1.931367 mm")))
sketch2.addConstraint(Sketcher.Constraint("Radius", 65, Q("0.584226 mm")))
sketch2.addConstraint(Sketcher.Constraint("Radius", 74, Q("0.838248 mm")))
sketch2.addConstraint(Sketcher.Constraint("Radius", 75, Q("0.212844 mm")))
sketch2.addConstraint(Sketcher.Constraint("Radius", 78, Q("0.176963 mm")))
sketch2.addConstraint(Sketcher.Constraint("Radius", 82, Q("0.242742 mm")))
sketch2.addConstraint(Sketcher.Constraint("DistanceX", 43, 2, 43, 1, Q("6.758139 mm")))
sketch2.addConstraint(Sketcher.Constraint("DistanceX", 52, 2, 52, 1, Q("5.427989 mm")))
sketch2.addConstraint(Sketcher.Constraint("DistanceX", 56, 2, 56, 1, Q("5.022021 mm")))
sketch2.addConstraint(Sketcher.Constraint("DistanceY", 57, 2, 57, 1, Q("0.822281 mm")))
sketch2.addConstraint(Sketcher.Constraint("DistanceY", 59, 1, 59, 2, Q("0.01774 mm")))
sketch2.addConstraint(Sketcher.Constraint("DistanceY", 67, 2, 67, 1, Q("0.797572 mm")))
sketch2.addConstraint(Sketcher.Constraint("DistanceY", 71, 1, 71, 2, Q("0.895981 mm")))
sketch2.addConstraint(Sketcher.Constraint("DistanceY", 83, 2, 83, 1, Q("4.319031 mm")))
sketch2.addConstraint(Sketcher.Constraint("DistanceX", 2, 2, -1, 1, Q("64.997402 mm")))
sketch2.addConstraint(Sketcher.Constraint("DistanceX", 6, 2, -1, 1, Q("62.363701 mm")))
sketch2.addConstraint(Sketcher.Constraint("DistanceY", -1, 1, 23, 1, Q("4.477401 mm")))
sketch2.addConstraint(Sketcher.Constraint("DistanceY", -1, 1, 59, 2, Q("0.940199 mm")))
sketch2.addConstraint(Sketcher.Constraint("Distance", 10, Q("4.77727 mm")))
sketch2.addConstraint(Sketcher.Constraint("Distance", 18, Q("0.548682 mm")))
sketch2.addConstraint(Sketcher.Constraint("Distance", 20, Q("3.014041 mm")))
sketch2.addConstraint(Sketcher.Constraint("Distance", 26, Q("3.332749 mm")))
sketch2.addConstraint(Sketcher.Constraint("Distance", 28, Q("4.916022 mm")))
sketch2.addConstraint(Sketcher.Constraint("Distance", 81, Q("8.323879 mm")))
sketch2.addConstraint(Sketcher.Constraint("DistanceX", 39, 2, 39, 1, Q("9.516493 mm")))
sketch2.addConstraint(Sketcher.Constraint("DistanceX", 46, 1, 46, 2, Q("1.702393 mm")))
sketch2.addConstraint(Sketcher.Constraint("DistanceX", 63, 1, 63, 2, Q("4.563193 mm")))
sketch2.addConstraint(Sketcher.Constraint("DistanceX", 66, 1, 66, 2, Q("9.035882 mm")))
sketch2.addConstraint(Sketcher.Constraint("DistanceX", 68, 1, 68, 2, Q("1.679774 mm")))
sketch2.addConstraint(Sketcher.Constraint("DistanceX", 70, 1, 70, 2, Q("1.686068 mm")))
sketch2.addConstraint(Sketcher.Constraint("DistanceX", 77, 2, 77, 1, Q("7.195762 mm")))
sketch2.addConstraint(Sketcher.Constraint("DistanceY", 1, 2, 1, 1, Q("11.847062 mm")))
sketch2.addConstraint(Sketcher.Constraint("DistanceY", 3, 1, 3, 2, Q("10.245532 mm")))
sketch2.addConstraint(Sketcher.Constraint("DistanceY", 11, 2, 11, 1, Q("1.617105 mm")))
sketch2.addConstraint(Sketcher.Constraint("DistanceY", 19, 2, 19, 1, Q("1.590595 mm")))
sketch2.addConstraint(Sketcher.Constraint("DistanceY", 27, 1, 27, 2, Q("1.545946 mm")))
sketch2.addConstraint(Sketcher.Constraint("DistanceY", 35, 1, 35, 2, Q("1.448986 mm")))
sketch2.addConstraint(Sketcher.Constraint("DistanceY", 45, 2, 45, 1, Q("2.564033 mm")))
sketch2.addConstraint(Sketcher.Constraint("DistanceY", 73, 1, 73, 2, Q("5.851916 mm")))
sketch2.addConstraint(Sketcher.Constraint("DistanceX", 0, 3, -1, 1, Q("71.105282 mm")))
sketch2.addConstraint(Sketcher.Constraint("DistanceX", 8, 3, -1, 1, Q("67.796471 mm")))
sketch2.addConstraint(Sketcher.Constraint("DistanceY", -1, 1, 9, 3, Q("9.427279 mm")))
sketch2.addConstraint(Sketcher.Constraint("DistanceX", 13, 3, -1, 1, Q("61.731028 mm")))
sketch2.addConstraint(Sketcher.Constraint("DistanceX", 15, 3, -1, 1, Q("57.847219 mm")))
sketch2.addConstraint(Sketcher.Constraint("DistanceX", 16, 3, -1, 1, Q("60.834609 mm")))
sketch2.addConstraint(Sketcher.Constraint("DistanceY", 16, 3, -1, 1, Q("1.35004 mm")))
sketch2.addConstraint(Sketcher.Constraint("DistanceX", 17, 3, -1, 1, Q("61.230059 mm")))
sketch2.addConstraint(Sketcher.Constraint("DistanceY", 17, 3, -1, 1, Q("5.159571 mm")))
sketch2.addConstraint(Sketcher.Constraint("DistanceY", -1, 1, 22, 3, Q("2.181441 mm")))
sketch2.addConstraint(Sketcher.Constraint("DistanceX", 23, 3, -1, 1, Q("60.13293 mm")))
sketch2.addConstraint(Sketcher.Constraint("DistanceX", 24, 3, -1, 1, Q("59.766861 mm")))
sketch2.addConstraint(Sketcher.Constraint("DistanceY", -1, 1, 25, 3, Q("4.548671 mm")))
sketch2.addConstraint(Sketcher.Constraint("DistanceY", -1, 1, 30, 3, Q("3.722129 mm")))
sketch2.addConstraint(Sketcher.Constraint("DistanceX", 32, 3, -1, 1, Q("71.770889 mm")))
sketch2.addConstraint(Sketcher.Constraint("DistanceY", -1, 1, 32, 3, Q("5.218431 mm")))
sketch2.addConstraint(Sketcher.Constraint("DistanceX", 36, 3, -1, 1, Q("70.83237 mm")))
sketch2.addConstraint(Sketcher.Constraint("DistanceY", -1, 1, 36, 3, Q("9.82325 mm")))
sketch2.addConstraint(Sketcher.Constraint("DistanceX", 37, 3, -1, 1, Q("70.534521 mm")))
sketch2.addConstraint(Sketcher.Constraint("DistanceX", 44, 3, -1, 1, Q("16.368562 mm")))
sketch2.addConstraint(Sketcher.Constraint("DistanceY", -1, 1, 44, 3, Q("3.454352 mm")))
sketch2.addConstraint(Sketcher.Constraint("DistanceX", -1, 1, 53, 3, Q("1.202871 mm")))
sketch2.addConstraint(Sketcher.Constraint("DistanceY", -1, 1, 65, 3, Q("2.267282 mm")))
sketch2.addConstraint(Sketcher.Constraint("DistanceX", -1, 1, 75, 3, Q("15.417591 mm")))
sketch2.addConstraint(Sketcher.Constraint("DistanceY", -1, 1, 75, 3, Q("2.781549 mm")))
sketch2.addConstraint(Sketcher.Constraint("DistanceY", -1, 1, 78, 3, Q("2.74946 mm")))
sketch2.addConstraint(Sketcher.Constraint("DistanceX", -1, 1, 82, 3, Q("15.41473 mm")))
sketch2.addConstraint(Sketcher.Constraint("DistanceY", -1, 1, 82, 3, Q("7.00332 mm")))
sketch2.addConstraint(Sketcher.Constraint("DistanceX", 0, 2, -1, 1, Q("67.696732 mm")))
sketch2.addConstraint(Sketcher.Constraint("DistanceY", -1, 1, 6, 2, Q("6.18079 mm")))
sketch2.addConstraint(Sketcher.Constraint("DistanceX", 9, 2, -1, 1, Q("62.612792 mm")))
sketch2.addConstraint(Sketcher.Constraint("DistanceX", 10, 2, -1, 1, Q("64.346871 mm")))
sketch2.addConstraint(Sketcher.Constraint("DistanceX", 12, 2, -1, 1, Q("59.196739 mm")))
sketch2.addConstraint(Sketcher.Constraint("DistanceY", -1, 1, 13, 2, Q("3.531628 mm")))
sketch2.addConstraint(Sketcher.Constraint("DistanceY", -1, 1, 14, 2, Q("4.283589 mm")))
sketch2.addConstraint(Sketcher.Constraint("DistanceY", -1, 1, 21, 2, Q("4.654032 mm")))
sketch2.addConstraint(Sketcher.Constraint("DistanceX", 26, 2, -1, 1, Q("68.233869 mm")))
sketch2.addConstraint(Sketcher.Constraint("DistanceY", -1, 1, 29, 2, Q("4.005861 mm")))
sketch2.addConstraint(Sketcher.Constraint("DistanceX", 31, 2, -1, 1, Q("73.207511 mm")))
sketch2.addConstraint(Sketcher.Constraint("DistanceX", -1, 1, 64, 2, Q("6.291672 mm")))
sketch2.addConstraint(Sketcher.Constraint("DistanceX", -1, 1, 79, 1, Q("8.131281 mm")))
sketch2.addConstraint(Sketcher.Constraint("DistanceX", -1, 1, 80, 1, Q("8.166368 mm")))
sketch2.addConstraint(Sketcher.Constraint("Distance", 2, Q("2.896262 mm")))
sketch2.addConstraint(Sketcher.Constraint("DistanceY", 0, 3, -1, 1, Q("7.355914 mm")))
sketch2.addConstraint(Sketcher.Constraint("DistanceX", 7, 3, -1, 1, Q("62.737222 mm")))
sketch2.addConstraint(Sketcher.Constraint("DistanceX", 29, 3, -1, 1, Q("71.636787 mm")))
sketch2.addConstraint(Sketcher.Constraint("DistanceX", 33, 3, -1, 1, Q("70.027192 mm")))
sketch2.addConstraint(Sketcher.Constraint("DistanceY", -1, 1, 33, 3, Q("9.832702 mm")))
sketch2.addConstraint(Sketcher.Constraint("DistanceX", 34, 3, -1, 1, Q("69.677797 mm")))
pocket1 = body.newObject("PartDesign::Pocket", "Pocket")
pocket1.Profile = sketch2
pocket1.Length = 2.5

# Sketch on XY plane
sketch3 = body.newObject("Sketcher::SketchObject", "Sketch002")
sketch3.AttachmentSupport = (doc.getObject("XY_Plane"), [""])
sketch3.MapMode = "FlatFace"
sketch3.AttachmentOffset = App.Placement(Vector(0, 0, 20), App.Rotation())
add_polygon(sketch3, [(-40, 12), (-40, -38), (40, -38), (40, 12)])  # lines 0-3
sketch3.addConstraint(Sketcher.Constraint("Vertical", 0))
sketch3.addConstraint(Sketcher.Constraint("Horizontal", 1))
sketch3.addConstraint(Sketcher.Constraint("Vertical", 2))
sketch3.addConstraint(Sketcher.Constraint("Horizontal", 3))
sketch3.addConstraint(Sketcher.Constraint("DistanceX", 1, 1, 1, 2, Q("80 mm")))
sketch3.addConstraint(Sketcher.Constraint("DistanceY", 0, 2, 0, 1, Q("50 mm")))
sketch3.addConstraint(Sketcher.Constraint("DistanceX", 0, 2, -1, 1, Q("40 mm")))
sketch3.addConstraint(Sketcher.Constraint("DistanceY", 0, 2, -1, 1, Q("37.52654 mm")))
pocket2 = body.newObject("PartDesign::Pocket", "Pocket001")
pocket2.Profile = sketch3
pocket2.Length = 10

doc.recompute()
